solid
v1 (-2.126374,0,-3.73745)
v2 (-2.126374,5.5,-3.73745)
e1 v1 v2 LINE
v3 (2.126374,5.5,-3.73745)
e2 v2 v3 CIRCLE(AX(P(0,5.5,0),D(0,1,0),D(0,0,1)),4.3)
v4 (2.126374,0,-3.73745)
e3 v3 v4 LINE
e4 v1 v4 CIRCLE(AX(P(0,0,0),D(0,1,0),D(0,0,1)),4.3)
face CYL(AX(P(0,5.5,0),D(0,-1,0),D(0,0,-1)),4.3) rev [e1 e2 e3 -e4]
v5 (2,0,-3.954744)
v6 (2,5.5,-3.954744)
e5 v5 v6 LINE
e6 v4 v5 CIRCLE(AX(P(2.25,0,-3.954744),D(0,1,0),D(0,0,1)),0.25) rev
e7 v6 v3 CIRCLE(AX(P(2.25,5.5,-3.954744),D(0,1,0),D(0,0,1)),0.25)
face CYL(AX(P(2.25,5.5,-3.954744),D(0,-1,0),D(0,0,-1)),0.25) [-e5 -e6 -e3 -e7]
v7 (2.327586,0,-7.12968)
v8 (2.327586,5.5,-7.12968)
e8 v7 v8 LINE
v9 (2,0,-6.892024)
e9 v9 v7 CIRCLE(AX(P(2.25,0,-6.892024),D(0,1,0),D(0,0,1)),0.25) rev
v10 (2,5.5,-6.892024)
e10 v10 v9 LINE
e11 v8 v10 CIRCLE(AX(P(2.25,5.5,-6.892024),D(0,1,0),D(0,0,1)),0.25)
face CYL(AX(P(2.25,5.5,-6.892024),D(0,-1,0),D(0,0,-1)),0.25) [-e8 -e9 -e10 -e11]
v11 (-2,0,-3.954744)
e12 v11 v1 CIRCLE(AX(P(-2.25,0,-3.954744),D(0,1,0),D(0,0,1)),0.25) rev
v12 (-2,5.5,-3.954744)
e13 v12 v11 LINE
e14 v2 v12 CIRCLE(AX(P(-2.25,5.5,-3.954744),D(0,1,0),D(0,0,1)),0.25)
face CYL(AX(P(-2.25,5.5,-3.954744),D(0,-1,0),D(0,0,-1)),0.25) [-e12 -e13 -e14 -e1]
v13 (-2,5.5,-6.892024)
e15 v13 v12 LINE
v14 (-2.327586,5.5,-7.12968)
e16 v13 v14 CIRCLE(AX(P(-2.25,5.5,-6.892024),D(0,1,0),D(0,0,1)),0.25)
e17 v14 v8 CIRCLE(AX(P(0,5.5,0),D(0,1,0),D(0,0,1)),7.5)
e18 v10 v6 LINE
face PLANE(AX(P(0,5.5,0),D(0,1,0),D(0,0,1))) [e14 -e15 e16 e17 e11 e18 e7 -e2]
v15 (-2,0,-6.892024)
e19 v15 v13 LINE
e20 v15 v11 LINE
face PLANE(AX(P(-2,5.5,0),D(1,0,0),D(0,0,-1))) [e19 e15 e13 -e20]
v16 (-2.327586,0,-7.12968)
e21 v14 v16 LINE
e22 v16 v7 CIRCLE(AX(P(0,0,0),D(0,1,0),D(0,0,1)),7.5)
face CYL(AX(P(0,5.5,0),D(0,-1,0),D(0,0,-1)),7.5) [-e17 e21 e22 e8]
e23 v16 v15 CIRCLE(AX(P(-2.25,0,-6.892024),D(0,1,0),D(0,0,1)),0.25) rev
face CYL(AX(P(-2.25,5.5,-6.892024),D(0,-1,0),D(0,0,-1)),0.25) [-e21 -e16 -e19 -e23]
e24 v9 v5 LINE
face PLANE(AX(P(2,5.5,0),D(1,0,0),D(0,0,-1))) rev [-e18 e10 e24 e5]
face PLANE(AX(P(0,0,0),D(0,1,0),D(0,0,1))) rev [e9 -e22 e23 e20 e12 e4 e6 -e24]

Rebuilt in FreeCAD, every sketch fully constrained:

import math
import FreeCAD as App
import Part
import Sketcher

V = App.Vector
Q = App.Units.Quantity


def edges_at(feature, points):
    """Names of the edges that pass closest to the given points."""
    edges = feature.Shape.Edges
    near = lambda p: min(range(len(edges)), key=lambda i: edges[i].distToShape(Part.Vertex(*p))[0])
    return sorted({f"Edge{near(p) + 1}" for p in points})

doc = App.newDocument("Part")
body = doc.addObject("PartDesign::Body", "Body")

# Sketch on XZ plane
sketch1 = doc.addObject("Sketcher::SketchObject", "Sketch")
body.addObject(sketch1)
sketch1.AttachmentSupport = (doc.XZ_Plane, [""])
sketch1.MapMode = "FlatFace"
sketch1.addGeometry([
    Part.LineSegment(V(-2, -3.8, 0), V(-2, -7.2, 0)),  # 0
    Part.ArcOfCircle(Part.Circle(V(0, 0, 0), V(0, 0, 1), 7.5), math.radians(0), math.radians(255)),  # 1
    Part.ArcOfCircle(Part.Circle(V(0, 0, 0), V(0, 0, 1), 7.5), math.radians(-75), math.radians(0)),  # 2
    Part.LineSegment(V(2, -7.2, 0), V(2, -3.8, 0)),  # 3
    Part.ArcOfCircle(Part.Circle(V(0, 0, 0), V(0, 0, 1), 4.3), math.radians(-62), math.radians(0)),  # 4
    Part.ArcOfCircle(Part.Circle(V(0, 0, 0), V(0, 0, 1), 4.3), math.radians(0), math.radians(242)),  # 5
], False)
sketch1.addConstraint([
    Sketcher.Constraint("Coincident", 0, 2, 1, 2),
    Sketcher.Constraint("Tangent", 1, 1, 2, 2),
    Sketcher.Constraint("Coincident", 2, 1, 3, 1),
    Sketcher.Constraint("Coincident", 3, 2, 4, 1),
    Sketcher.Constraint("Tangent", 4, 2, 5, 1),
    Sketcher.Constraint("Coincident", 5, 2, 0, 1),
    Sketcher.Constraint("Vertical", 0),
    Sketcher.Constraint("Vertical", 3),
    Sketcher.Constraint("Coincident", 1, 3, -1, 1),
    Sketcher.Constraint("Coincident", 4, 3, -1, 1),
    Sketcher.Constraint("Equal", 1, 2),
    Sketcher.Constraint("Equal", 4, 5),
    Sketcher.Constraint("PointOnObject", 1, 1, -1),
    Sketcher.Constraint("PointOnObject", 4, 2, -1),
    Sketcher.Constraint("Horizontal", 0, 2, 2, 1),
    Sketcher.Constraint("Radius", 1, Q("7.5 mm")),
    Sketcher.Constraint("Radius", 4, Q("4.3 mm")),
    Sketcher.Constraint("DistanceX", 0, 2, -1, 1, Q("2 mm")),
])
pad1 = doc.addObject("PartDesign::Pad", "Pad")
body.addObject(pad1)
pad1.Profile = sketch1
pad1.Length = 5.5
pad1.Reversed = True
doc.recompute()

fillet = doc.addObject("PartDesign::Fillet", "Fillet")
body.addObject(fillet)
fillet.Base = (pad1, edges_at(pad1, [
    (2, 2.75, -3.807),
    (2, 2.75, -7.228),
    (-2, 2.75, -7.228),
    (-2, 2.75, -3.807),
]))
fillet.Radius = 0.25

doc.recompute()
